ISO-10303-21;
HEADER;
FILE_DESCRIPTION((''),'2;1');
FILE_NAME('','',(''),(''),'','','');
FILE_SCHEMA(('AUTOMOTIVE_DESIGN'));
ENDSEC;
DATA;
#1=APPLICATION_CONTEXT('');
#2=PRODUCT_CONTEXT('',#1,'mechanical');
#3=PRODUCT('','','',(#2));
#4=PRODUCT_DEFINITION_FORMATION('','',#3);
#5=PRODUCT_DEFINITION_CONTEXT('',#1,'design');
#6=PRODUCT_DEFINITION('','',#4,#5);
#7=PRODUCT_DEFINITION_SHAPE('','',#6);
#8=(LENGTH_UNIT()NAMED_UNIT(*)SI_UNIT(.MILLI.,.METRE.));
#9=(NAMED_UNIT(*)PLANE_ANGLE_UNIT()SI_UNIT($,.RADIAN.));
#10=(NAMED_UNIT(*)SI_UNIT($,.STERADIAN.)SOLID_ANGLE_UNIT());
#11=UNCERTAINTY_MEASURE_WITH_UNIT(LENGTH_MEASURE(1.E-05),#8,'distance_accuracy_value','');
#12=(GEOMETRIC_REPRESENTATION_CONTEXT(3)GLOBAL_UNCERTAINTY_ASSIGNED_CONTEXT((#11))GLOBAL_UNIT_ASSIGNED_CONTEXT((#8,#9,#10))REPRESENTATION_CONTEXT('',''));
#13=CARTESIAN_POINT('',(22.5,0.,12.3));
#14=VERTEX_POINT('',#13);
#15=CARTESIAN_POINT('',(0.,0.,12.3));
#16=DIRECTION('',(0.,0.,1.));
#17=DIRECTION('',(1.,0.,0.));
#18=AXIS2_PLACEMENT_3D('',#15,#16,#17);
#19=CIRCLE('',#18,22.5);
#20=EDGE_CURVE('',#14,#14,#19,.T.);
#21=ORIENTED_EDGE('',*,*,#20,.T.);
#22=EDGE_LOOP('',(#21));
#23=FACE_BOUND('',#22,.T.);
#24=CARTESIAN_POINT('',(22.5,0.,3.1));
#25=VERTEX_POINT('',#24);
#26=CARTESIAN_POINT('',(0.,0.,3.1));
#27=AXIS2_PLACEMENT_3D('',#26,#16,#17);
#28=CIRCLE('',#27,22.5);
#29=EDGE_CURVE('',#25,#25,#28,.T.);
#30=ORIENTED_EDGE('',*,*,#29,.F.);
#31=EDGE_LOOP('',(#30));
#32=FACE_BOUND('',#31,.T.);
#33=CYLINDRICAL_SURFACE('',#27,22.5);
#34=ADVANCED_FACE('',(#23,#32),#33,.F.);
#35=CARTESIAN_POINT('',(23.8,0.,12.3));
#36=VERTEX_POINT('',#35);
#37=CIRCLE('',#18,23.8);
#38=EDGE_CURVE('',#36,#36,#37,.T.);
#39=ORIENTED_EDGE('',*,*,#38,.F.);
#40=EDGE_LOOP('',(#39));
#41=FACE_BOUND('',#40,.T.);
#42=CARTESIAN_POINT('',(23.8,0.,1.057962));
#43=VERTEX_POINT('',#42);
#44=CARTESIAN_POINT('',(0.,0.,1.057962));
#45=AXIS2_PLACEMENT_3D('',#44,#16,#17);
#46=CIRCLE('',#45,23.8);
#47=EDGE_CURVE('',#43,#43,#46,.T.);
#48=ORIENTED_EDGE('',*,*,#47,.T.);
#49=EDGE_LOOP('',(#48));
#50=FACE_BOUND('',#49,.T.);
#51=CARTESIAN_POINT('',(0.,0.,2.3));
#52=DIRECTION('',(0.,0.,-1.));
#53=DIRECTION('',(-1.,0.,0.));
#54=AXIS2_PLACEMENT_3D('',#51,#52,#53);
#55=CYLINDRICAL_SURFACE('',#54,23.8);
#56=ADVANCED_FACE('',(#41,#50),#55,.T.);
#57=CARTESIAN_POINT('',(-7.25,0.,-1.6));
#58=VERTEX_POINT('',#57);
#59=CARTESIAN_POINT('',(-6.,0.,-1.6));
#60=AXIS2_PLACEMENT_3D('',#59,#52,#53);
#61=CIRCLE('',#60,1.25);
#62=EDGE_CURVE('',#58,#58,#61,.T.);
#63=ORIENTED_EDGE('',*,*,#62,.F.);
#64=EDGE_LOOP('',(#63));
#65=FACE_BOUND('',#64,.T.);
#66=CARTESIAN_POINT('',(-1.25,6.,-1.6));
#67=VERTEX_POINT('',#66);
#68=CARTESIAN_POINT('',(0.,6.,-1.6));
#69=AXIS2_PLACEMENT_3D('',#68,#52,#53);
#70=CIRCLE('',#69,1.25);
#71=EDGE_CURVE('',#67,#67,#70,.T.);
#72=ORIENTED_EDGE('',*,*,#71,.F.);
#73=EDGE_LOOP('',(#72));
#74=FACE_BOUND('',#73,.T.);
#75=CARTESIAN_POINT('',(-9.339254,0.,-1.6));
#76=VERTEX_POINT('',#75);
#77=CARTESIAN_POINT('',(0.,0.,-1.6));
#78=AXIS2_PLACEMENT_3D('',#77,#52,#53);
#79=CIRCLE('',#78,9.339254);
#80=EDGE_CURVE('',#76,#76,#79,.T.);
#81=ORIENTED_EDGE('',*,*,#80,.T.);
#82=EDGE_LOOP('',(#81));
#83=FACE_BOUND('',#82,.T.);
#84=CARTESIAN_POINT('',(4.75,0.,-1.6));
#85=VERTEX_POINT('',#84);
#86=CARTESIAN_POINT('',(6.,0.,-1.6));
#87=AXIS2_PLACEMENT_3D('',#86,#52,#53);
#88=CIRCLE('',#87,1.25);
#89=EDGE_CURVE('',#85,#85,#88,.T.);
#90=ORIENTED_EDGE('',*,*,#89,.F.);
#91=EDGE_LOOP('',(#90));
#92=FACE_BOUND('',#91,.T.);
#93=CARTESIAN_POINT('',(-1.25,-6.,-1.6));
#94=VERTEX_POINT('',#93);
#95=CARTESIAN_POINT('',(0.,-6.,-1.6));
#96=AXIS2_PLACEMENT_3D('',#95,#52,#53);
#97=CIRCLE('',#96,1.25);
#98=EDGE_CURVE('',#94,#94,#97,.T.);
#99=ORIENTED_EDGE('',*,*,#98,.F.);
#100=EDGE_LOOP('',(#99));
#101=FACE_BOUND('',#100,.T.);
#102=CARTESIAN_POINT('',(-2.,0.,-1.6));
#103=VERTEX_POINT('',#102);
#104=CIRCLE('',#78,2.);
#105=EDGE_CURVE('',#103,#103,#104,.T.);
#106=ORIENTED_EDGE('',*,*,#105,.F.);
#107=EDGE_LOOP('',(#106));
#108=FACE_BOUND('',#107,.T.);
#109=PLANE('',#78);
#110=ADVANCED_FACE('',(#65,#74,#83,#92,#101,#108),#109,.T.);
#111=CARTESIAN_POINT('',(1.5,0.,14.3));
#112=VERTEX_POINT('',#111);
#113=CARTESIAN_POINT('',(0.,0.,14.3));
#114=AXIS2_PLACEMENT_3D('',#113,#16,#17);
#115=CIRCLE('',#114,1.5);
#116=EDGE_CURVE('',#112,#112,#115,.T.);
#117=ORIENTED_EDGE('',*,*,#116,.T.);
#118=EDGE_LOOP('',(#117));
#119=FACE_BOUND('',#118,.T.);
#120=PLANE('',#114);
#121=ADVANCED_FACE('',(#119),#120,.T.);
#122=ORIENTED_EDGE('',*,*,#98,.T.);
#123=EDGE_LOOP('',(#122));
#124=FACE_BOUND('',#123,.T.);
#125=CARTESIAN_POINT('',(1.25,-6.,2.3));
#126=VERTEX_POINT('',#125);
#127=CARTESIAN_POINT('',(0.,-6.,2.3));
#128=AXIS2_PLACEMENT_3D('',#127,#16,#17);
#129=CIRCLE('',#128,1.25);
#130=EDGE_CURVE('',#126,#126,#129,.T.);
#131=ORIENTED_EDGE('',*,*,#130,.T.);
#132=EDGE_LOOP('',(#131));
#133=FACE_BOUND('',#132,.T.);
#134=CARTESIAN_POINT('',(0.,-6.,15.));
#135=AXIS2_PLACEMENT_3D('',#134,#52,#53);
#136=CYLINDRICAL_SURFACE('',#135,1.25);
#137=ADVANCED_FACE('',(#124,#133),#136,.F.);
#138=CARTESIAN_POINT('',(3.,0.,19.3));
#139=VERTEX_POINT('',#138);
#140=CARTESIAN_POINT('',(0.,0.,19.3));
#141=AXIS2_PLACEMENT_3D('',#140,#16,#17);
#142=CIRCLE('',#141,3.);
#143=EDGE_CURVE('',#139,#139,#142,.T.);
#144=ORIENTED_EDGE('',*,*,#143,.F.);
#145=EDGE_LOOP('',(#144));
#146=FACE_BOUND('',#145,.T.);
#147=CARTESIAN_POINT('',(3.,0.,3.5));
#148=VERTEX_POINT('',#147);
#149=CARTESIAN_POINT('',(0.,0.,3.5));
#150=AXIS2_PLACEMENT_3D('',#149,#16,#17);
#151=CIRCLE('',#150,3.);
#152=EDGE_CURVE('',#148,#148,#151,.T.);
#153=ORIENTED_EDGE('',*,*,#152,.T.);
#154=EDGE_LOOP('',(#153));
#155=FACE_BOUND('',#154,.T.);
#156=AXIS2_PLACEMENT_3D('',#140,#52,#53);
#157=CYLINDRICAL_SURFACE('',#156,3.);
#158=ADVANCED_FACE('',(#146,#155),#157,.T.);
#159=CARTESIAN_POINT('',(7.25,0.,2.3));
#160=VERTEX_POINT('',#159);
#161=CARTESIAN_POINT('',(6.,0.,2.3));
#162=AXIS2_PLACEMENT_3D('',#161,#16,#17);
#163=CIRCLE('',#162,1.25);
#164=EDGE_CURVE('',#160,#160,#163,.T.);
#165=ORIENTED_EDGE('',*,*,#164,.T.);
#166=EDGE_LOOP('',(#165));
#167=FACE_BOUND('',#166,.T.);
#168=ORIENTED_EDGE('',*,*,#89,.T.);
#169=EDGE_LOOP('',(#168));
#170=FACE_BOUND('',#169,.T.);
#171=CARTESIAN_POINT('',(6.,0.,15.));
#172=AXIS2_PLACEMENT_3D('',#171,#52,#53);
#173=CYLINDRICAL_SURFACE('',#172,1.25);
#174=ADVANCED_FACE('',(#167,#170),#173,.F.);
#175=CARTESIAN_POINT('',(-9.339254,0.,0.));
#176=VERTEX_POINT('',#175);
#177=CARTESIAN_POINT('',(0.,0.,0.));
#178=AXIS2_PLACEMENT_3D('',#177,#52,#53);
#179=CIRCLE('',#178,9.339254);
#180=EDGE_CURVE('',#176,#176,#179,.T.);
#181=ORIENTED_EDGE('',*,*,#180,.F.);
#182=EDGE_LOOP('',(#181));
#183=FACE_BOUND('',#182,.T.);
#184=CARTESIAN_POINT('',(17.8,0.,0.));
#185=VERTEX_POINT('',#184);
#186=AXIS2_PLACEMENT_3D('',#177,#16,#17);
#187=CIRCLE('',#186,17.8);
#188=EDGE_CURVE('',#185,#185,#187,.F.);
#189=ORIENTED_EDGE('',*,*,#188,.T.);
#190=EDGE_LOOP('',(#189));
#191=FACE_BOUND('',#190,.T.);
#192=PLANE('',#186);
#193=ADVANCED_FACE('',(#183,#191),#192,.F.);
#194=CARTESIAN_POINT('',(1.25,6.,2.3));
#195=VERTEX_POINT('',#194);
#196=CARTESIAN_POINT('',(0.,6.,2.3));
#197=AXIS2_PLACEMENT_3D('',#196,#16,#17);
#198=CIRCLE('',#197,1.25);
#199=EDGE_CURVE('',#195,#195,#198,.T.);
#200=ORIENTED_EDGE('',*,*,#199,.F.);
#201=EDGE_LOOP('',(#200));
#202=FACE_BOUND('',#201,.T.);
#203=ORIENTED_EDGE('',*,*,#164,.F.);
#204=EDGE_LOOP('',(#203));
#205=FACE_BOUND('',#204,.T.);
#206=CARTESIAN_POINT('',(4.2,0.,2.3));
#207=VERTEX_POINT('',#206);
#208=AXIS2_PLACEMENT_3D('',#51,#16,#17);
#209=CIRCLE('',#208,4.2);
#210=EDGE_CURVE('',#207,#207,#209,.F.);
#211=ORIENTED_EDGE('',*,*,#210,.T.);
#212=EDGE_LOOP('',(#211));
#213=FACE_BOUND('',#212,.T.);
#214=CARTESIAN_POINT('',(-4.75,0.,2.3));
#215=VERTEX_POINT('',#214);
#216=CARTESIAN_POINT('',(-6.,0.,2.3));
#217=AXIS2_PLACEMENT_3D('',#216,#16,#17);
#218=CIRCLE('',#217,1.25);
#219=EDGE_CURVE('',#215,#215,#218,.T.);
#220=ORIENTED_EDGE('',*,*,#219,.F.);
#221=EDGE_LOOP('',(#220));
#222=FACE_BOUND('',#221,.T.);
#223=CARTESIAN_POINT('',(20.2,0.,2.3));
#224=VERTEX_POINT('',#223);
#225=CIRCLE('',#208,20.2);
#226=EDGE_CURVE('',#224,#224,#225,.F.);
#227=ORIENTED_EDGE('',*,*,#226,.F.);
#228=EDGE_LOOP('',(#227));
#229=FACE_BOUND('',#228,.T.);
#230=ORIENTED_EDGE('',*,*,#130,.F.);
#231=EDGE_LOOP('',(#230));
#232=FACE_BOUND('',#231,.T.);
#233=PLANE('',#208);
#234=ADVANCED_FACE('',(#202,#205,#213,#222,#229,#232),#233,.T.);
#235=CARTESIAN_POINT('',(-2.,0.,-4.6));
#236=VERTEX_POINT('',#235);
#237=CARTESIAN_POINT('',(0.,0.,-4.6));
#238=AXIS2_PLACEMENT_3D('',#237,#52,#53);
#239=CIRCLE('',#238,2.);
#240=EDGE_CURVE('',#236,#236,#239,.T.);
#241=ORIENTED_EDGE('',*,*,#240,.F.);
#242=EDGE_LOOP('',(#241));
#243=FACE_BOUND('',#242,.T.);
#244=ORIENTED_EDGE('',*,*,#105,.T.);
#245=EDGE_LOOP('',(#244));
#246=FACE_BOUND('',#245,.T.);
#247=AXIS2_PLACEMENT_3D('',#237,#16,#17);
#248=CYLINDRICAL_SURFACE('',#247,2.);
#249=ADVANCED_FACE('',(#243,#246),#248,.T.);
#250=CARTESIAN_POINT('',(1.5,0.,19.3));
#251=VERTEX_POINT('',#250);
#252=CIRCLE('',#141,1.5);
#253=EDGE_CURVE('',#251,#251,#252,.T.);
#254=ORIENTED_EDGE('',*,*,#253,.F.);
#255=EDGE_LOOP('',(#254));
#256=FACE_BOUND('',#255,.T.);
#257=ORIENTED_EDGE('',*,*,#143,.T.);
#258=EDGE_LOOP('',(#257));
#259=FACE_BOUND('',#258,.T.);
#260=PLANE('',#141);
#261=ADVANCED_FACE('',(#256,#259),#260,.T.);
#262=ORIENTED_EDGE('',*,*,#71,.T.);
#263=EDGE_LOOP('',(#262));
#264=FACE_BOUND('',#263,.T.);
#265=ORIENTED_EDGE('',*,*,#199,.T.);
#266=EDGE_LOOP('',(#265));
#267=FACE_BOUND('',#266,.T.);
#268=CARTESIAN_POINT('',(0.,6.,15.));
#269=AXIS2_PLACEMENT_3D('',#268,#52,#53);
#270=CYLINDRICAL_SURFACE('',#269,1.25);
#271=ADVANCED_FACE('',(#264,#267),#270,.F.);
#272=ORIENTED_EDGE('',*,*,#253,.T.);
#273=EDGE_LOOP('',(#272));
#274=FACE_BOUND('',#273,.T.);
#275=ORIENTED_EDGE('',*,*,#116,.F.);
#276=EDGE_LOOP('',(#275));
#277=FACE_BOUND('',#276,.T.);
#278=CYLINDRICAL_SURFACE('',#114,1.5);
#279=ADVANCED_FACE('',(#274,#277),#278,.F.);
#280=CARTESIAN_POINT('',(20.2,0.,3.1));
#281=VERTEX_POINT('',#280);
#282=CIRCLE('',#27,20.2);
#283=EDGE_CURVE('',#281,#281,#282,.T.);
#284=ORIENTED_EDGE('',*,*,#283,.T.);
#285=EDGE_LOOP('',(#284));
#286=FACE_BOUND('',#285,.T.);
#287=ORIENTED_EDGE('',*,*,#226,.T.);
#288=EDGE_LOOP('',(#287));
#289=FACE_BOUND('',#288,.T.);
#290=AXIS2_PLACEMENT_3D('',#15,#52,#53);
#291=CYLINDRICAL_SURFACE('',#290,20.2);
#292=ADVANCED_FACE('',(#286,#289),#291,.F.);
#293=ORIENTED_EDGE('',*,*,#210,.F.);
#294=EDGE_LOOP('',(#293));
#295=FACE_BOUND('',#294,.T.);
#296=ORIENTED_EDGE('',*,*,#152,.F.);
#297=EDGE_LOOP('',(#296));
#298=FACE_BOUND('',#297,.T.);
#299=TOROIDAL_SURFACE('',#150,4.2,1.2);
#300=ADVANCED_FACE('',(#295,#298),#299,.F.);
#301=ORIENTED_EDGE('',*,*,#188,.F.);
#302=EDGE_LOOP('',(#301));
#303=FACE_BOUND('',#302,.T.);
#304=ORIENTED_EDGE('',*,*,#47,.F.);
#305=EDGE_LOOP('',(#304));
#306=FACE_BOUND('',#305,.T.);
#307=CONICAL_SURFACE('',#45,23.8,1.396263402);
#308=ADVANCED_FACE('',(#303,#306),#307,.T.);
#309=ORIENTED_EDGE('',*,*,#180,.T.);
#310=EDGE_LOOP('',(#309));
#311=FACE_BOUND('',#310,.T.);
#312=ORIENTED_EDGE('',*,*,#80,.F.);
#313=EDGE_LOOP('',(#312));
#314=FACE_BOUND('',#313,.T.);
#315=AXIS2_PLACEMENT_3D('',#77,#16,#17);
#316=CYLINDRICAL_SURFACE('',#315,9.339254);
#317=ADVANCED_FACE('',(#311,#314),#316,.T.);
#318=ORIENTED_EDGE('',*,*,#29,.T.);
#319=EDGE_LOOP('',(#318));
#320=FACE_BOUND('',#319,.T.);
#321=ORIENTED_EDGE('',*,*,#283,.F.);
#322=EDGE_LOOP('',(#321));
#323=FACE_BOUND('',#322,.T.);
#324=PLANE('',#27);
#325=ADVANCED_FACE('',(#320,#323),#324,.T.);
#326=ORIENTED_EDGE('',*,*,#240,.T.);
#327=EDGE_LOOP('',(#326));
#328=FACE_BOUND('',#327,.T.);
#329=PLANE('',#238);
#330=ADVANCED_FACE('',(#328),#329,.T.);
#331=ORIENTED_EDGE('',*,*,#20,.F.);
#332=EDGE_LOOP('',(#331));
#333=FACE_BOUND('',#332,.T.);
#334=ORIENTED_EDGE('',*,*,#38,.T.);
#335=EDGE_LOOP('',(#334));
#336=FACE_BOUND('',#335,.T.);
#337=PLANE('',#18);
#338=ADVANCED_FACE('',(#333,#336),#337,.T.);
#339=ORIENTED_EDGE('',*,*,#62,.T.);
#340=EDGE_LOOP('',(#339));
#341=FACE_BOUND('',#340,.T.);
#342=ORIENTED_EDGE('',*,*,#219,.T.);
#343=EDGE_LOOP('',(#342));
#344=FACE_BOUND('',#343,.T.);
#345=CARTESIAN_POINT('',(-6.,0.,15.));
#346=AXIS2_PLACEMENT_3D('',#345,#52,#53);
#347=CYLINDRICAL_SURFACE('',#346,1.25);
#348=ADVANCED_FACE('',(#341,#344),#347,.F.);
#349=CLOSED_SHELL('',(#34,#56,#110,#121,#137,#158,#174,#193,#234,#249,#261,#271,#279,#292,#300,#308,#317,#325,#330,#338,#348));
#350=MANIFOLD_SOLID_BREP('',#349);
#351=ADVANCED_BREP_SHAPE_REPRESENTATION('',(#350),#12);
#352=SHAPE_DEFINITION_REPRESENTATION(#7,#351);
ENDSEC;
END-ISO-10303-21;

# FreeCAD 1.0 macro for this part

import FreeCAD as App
import Part
import Sketcher


def edges_at(feature, points):
    """Names of the edges that pass closest to the given points."""
    edges = feature.Shape.Edges
    near = lambda p: min(range(len(edges)), key=lambda i: edges[i].distToShape(Part.Vertex(*p))[0])
    return sorted({f"Edge{near(p) + 1}" for p in points})

doc = App.newDocument("Part")
body = doc.addObject("PartDesign::Body", "Body")

# Sketch on XY plane
sketch1 = doc.addObject("Sketcher::SketchObject", "Sketch")
body.addObject(sketch1)
sketch1.AttachmentSupport = (doc.XY_Plane, [""])
sketch1.MapMode = "FlatFace"
sketch1.addGeometry(Part.Circle(App.Vector(0, 0, 0), App.Vector(0, 0, 1), 24), False)
sketch1.addConstraint([
    Sketcher.Constraint("Coincident", 0, 3, -1, 1),
    Sketcher.Constraint("Diameter", 0, 47.6),
])
pad1 = doc.addObject("PartDesign::Pad", "Pad")
body.addObject(pad1)
pad1.Profile = sketch1
pad1.Length = 2.3

# Sketch on XY plane
sketch2 = doc.addObject("Sketcher::SketchObject", "Sketch001")
body.addObject(sketch2)
sketch2.AttachmentSupport = (doc.XY_Plane, [""])
sketch2.MapMode = "FlatFace"
sketch2.AttachmentOffset = App.Placement(App.Vector(0, 0, 2.3), App.Rotation())
sketch2.addGeometry([
    Part.Circle(App.Vector(0, 0, 0), App.Vector(0, 0, 1), 24),
    Part.Circle(App.Vector(0, 0, 0), App.Vector(0, 0, 1), 20),
], False)
sketch2.addConstraint([
    Sketcher.Constraint("Coincident", 0, 3, -1, 1),
    Sketcher.Constraint("Coincident", 1, 3, -1, 1),
    Sketcher.Constraint("Diameter", 0, 47.6),
    Sketcher.Constraint("Diameter", 1, 40.4),
])
pad2 = doc.addObject("PartDesign::Pad", "Pad001")
body.addObject(pad2)
pad2.Profile = sketch2
pad2.Length = 10

# Sketch on XY plane
sketch3 = doc.addObject("Sketcher::SketchObject", "Sketch002")
body.addObject(sketch3)
sketch3.AttachmentSupport = (doc.XY_Plane, [""])
sketch3.MapMode = "FlatFace"
sketch3.AttachmentOffset = App.Placement(App.Vector(0, 0, 2.3), App.Rotation())
sketch3.addGeometry(Part.Circle(App.Vector(0, 0, 0), App.Vector(0, 0, 1), 3), False)
sketch3.addConstraint([
    Sketcher.Constraint("Coincident", 0, 3, -1, 1),
    Sketcher.Constraint("Diameter", 0, 6.0),
])
pad3 = doc.addObject("PartDesign::Pad", "Pad002")
body.addObject(pad3)
pad3.Profile = sketch3
pad3.Length = 17
doc.recompute()

chamfer = doc.addObject("PartDesign::Chamfer", "Chamfer")
body.addObject(chamfer)
chamfer.Base = (pad3, edges_at(pad3, [(-23.8, 0, 0)]))
chamfer.ChamferType = "Two distances"
chamfer.Size = 6
chamfer.Size2 = 1.057962
chamfer.FlipDirection = True

# Sketch on XY plane
sketch4 = doc.addObject("Sketcher::SketchObject", "Sketch003")
body.addObject(sketch4)
sketch4.AttachmentSupport = (doc.XY_Plane, [""])
sketch4.MapMode = "FlatFace"
sketch4.addGeometry([
    Part.Circle(App.Vector(-6, 0, 0), App.Vector(0, 0, 1), 1.2),
    Part.Circle(App.Vector(0, -6, 0), App.Vector(0, 0, 1), 1.2),
    Part.Circle(App.Vector(6, 0, 0), App.Vector(0, 0, 1), 1.2),
    Part.Circle(App.Vector(0, 6, 0), App.Vector(0, 0, 1), 1.2),
], False)
sketch4.addConstraint([
    Sketcher.Constraint("Equal", 0, 1),
    Sketcher.Constraint("Equal", 1, 2),
    Sketcher.Constraint("Equal", 2, 3),
    Sketcher.Constraint("Symmetric", 0, 3, 2, 3, -1, 1),
    Sketcher.Constraint("Symmetric", 1, 3, 3, 3, -1, 1),
    Sketcher.Constraint("PointOnObject", 0, 3, -1),
    Sketcher.Constraint("PointOnObject", 1, 3, -2),
    Sketcher.Constraint("Diameter", 0, 2.5),
    Sketcher.Constraint("DistanceX", 0, 3, -1, 1, 6.0),
    Sketcher.Constraint("DistanceY", 1, 3, -1, 1, 6.0),
])
pocket1 = doc.addObject("PartDesign::Pocket", "Pocket")
body.addObject(pocket1)
pocket1.Profile = sketch4
pocket1.Length = 15
pocket1.Reversed = True

# Sketch on XY plane
sketch5 = doc.addObject("Sketcher::SketchObject", "Sketch004")
body.addObject(sketch5)
sketch5.AttachmentSupport = (doc.XY_Plane, [""])
sketch5.MapMode = "FlatFace"
sketch5.AttachmentOffset = App.Placement(App.Vector(0, 0, 3.1), App.Rotation())
sketch5.addGeometry([
    Part.Circle(App.Vector(0, 0, 0), App.Vector(0, 0, 1), 22),
    Part.Circle(App.Vector(0, 0, 0), App.Vector(0, 0, 1), 20),
], False)
sketch5.addConstraint([
    Sketcher.Constraint("Coincident", 0, 3, -1, 1),
    Sketcher.Constraint("Coincident", 1, 3, -1, 1),
    Sketcher.Constraint("Diameter", 0, 45.0),
    Sketcher.Constraint("Diameter", 1, 40.4),
])
pocket2 = doc.addObject("PartDesign::Pocket", "Pocket001")
body.addObject(pocket2)
pocket2.Profile = sketch5
pocket2.Length = 9.2
pocket2.Reversed = True

# Sketch on XY plane
sketch6 = doc.addObject("Sketcher::SketchObject", "Sketch005")
body.addObject(sketch6)
sketch6.AttachmentSupport = (doc.XY_Plane, [""])
sketch6.MapMode = "FlatFace"
sketch6.AttachmentOffset = App.Placement(App.Vector(0, 0, 19.3), App.Rotation())
sketch6.addGeometry(Part.Circle(App.Vector(0, 0, 0), App.Vector(0, 0, 1), 1.5), False)
sketch6.addConstraint([
    Sketcher.Constraint("Coincident", 0, 3, -1, 1),
    Sketcher.Constraint("Diameter", 0, 3.0),
])
pocket3 = doc.addObject("PartDesign::Pocket", "Pocket002")
body.addObject(pocket3)
pocket3.Profile = sketch6
pocket3.Length = 5
doc.recompute()

fillet = doc.addObject("PartDesign::Fillet", "Fillet")
body.addObject(fillet)
fillet.Base = (pocket3, edges_at(pocket3, [(-3, 0, 2.3)]))
fillet.Radius = 1.2

# Sketch on XY plane
sketch7 = doc.addObject("Sketcher::SketchObject", "Sketch006")
body.addObject(sketch7)
sketch7.AttachmentSupport = (doc.XY_Plane, [""])
sketch7.MapMode = "FlatFace"
sketch7.AttachmentOffset = App.Placement(App.Vector(0, 0, -1.6), App.Rotation())
sketch7.addGeometry([
    Part.Circle(App.Vector(0, 0, 0), App.Vector(0, 0, 1), 9.3),  # 0
    Part.Circle(App.Vector(0, -6, 0), App.Vector(0, 0, 1), 1.2),  # 1
    Part.Circle(App.Vector(6, 0, 0), App.Vector(0, 0, 1), 1.2),  # 2
    Part.Circle(App.Vector(-6, 0, 0), App.Vector(0, 0, 1), 1.2),  # 3
    Part.Circle(App.Vector(0, 6, 0), App.Vector(0, 0, 1), 1.2),  # 4
], False)
sketch7.addConstraint([
    Sketcher.Constraint("Coincident", 0, 3, -1, 1),
    Sketcher.Constraint("Equal", 1, 2),
    Sketcher.Constraint("Equal", 2, 3),
    Sketcher.Constraint("Equal", 3, 4),
    Sketcher.Constraint("Symmetric", 2, 3, 3, 3, -1, 1),
    Sketcher.Constraint("Symmetric", 1, 3, 4, 3, -1, 1),
    Sketcher.Constraint("PointOnObject", 1, 3, -2),
    Sketcher.Constraint("PointOnObject", 2, 3, -1),
    Sketcher.Constraint("Diameter", 1, 2.5),
    Sketcher.Constraint("DistanceY", 1, 3, -1, 1, 6.0),
    Sketcher.Constraint("DistanceX", -1, 1, 2, 3, 6.0),
    Sketcher.Constraint("Diameter", 0, 18.678508),
])
pad4 = doc.addObject("PartDesign::Pad", "Pad003")
body.addObject(pad4)
pad4.Profile = sketch7
pad4.Length = 1.6

# Sketch on XY plane
sketch8 = doc.addObject("Sketcher::SketchObject", "Sketch007")
body.addObject(sketch8)
sketch8.AttachmentSupport = (doc.XY_Plane, [""])
sketch8.MapMode = "FlatFace"
sketch8.AttachmentOffset = App.Placement(App.Vector(0, 0, -1.6), App.Rotation())
sketch8.addGeometry(Part.Circle(App.Vector(0, 0, 0), App.Vector(0, 0, 1), 2), False)
sketch8.addConstraint([
    Sketcher.Constraint("Coincident", 0, 3, -1, 1),
    Sketcher.Constraint("Diameter", 0, 4.0),
])
pad5 = doc.addObject("PartDesign::Pad", "Pad004")
body.addObject(pad5)
pad5.Profile = sketch8
pad5.Length = 3
pad5.Reversed = True

doc.recompute()
